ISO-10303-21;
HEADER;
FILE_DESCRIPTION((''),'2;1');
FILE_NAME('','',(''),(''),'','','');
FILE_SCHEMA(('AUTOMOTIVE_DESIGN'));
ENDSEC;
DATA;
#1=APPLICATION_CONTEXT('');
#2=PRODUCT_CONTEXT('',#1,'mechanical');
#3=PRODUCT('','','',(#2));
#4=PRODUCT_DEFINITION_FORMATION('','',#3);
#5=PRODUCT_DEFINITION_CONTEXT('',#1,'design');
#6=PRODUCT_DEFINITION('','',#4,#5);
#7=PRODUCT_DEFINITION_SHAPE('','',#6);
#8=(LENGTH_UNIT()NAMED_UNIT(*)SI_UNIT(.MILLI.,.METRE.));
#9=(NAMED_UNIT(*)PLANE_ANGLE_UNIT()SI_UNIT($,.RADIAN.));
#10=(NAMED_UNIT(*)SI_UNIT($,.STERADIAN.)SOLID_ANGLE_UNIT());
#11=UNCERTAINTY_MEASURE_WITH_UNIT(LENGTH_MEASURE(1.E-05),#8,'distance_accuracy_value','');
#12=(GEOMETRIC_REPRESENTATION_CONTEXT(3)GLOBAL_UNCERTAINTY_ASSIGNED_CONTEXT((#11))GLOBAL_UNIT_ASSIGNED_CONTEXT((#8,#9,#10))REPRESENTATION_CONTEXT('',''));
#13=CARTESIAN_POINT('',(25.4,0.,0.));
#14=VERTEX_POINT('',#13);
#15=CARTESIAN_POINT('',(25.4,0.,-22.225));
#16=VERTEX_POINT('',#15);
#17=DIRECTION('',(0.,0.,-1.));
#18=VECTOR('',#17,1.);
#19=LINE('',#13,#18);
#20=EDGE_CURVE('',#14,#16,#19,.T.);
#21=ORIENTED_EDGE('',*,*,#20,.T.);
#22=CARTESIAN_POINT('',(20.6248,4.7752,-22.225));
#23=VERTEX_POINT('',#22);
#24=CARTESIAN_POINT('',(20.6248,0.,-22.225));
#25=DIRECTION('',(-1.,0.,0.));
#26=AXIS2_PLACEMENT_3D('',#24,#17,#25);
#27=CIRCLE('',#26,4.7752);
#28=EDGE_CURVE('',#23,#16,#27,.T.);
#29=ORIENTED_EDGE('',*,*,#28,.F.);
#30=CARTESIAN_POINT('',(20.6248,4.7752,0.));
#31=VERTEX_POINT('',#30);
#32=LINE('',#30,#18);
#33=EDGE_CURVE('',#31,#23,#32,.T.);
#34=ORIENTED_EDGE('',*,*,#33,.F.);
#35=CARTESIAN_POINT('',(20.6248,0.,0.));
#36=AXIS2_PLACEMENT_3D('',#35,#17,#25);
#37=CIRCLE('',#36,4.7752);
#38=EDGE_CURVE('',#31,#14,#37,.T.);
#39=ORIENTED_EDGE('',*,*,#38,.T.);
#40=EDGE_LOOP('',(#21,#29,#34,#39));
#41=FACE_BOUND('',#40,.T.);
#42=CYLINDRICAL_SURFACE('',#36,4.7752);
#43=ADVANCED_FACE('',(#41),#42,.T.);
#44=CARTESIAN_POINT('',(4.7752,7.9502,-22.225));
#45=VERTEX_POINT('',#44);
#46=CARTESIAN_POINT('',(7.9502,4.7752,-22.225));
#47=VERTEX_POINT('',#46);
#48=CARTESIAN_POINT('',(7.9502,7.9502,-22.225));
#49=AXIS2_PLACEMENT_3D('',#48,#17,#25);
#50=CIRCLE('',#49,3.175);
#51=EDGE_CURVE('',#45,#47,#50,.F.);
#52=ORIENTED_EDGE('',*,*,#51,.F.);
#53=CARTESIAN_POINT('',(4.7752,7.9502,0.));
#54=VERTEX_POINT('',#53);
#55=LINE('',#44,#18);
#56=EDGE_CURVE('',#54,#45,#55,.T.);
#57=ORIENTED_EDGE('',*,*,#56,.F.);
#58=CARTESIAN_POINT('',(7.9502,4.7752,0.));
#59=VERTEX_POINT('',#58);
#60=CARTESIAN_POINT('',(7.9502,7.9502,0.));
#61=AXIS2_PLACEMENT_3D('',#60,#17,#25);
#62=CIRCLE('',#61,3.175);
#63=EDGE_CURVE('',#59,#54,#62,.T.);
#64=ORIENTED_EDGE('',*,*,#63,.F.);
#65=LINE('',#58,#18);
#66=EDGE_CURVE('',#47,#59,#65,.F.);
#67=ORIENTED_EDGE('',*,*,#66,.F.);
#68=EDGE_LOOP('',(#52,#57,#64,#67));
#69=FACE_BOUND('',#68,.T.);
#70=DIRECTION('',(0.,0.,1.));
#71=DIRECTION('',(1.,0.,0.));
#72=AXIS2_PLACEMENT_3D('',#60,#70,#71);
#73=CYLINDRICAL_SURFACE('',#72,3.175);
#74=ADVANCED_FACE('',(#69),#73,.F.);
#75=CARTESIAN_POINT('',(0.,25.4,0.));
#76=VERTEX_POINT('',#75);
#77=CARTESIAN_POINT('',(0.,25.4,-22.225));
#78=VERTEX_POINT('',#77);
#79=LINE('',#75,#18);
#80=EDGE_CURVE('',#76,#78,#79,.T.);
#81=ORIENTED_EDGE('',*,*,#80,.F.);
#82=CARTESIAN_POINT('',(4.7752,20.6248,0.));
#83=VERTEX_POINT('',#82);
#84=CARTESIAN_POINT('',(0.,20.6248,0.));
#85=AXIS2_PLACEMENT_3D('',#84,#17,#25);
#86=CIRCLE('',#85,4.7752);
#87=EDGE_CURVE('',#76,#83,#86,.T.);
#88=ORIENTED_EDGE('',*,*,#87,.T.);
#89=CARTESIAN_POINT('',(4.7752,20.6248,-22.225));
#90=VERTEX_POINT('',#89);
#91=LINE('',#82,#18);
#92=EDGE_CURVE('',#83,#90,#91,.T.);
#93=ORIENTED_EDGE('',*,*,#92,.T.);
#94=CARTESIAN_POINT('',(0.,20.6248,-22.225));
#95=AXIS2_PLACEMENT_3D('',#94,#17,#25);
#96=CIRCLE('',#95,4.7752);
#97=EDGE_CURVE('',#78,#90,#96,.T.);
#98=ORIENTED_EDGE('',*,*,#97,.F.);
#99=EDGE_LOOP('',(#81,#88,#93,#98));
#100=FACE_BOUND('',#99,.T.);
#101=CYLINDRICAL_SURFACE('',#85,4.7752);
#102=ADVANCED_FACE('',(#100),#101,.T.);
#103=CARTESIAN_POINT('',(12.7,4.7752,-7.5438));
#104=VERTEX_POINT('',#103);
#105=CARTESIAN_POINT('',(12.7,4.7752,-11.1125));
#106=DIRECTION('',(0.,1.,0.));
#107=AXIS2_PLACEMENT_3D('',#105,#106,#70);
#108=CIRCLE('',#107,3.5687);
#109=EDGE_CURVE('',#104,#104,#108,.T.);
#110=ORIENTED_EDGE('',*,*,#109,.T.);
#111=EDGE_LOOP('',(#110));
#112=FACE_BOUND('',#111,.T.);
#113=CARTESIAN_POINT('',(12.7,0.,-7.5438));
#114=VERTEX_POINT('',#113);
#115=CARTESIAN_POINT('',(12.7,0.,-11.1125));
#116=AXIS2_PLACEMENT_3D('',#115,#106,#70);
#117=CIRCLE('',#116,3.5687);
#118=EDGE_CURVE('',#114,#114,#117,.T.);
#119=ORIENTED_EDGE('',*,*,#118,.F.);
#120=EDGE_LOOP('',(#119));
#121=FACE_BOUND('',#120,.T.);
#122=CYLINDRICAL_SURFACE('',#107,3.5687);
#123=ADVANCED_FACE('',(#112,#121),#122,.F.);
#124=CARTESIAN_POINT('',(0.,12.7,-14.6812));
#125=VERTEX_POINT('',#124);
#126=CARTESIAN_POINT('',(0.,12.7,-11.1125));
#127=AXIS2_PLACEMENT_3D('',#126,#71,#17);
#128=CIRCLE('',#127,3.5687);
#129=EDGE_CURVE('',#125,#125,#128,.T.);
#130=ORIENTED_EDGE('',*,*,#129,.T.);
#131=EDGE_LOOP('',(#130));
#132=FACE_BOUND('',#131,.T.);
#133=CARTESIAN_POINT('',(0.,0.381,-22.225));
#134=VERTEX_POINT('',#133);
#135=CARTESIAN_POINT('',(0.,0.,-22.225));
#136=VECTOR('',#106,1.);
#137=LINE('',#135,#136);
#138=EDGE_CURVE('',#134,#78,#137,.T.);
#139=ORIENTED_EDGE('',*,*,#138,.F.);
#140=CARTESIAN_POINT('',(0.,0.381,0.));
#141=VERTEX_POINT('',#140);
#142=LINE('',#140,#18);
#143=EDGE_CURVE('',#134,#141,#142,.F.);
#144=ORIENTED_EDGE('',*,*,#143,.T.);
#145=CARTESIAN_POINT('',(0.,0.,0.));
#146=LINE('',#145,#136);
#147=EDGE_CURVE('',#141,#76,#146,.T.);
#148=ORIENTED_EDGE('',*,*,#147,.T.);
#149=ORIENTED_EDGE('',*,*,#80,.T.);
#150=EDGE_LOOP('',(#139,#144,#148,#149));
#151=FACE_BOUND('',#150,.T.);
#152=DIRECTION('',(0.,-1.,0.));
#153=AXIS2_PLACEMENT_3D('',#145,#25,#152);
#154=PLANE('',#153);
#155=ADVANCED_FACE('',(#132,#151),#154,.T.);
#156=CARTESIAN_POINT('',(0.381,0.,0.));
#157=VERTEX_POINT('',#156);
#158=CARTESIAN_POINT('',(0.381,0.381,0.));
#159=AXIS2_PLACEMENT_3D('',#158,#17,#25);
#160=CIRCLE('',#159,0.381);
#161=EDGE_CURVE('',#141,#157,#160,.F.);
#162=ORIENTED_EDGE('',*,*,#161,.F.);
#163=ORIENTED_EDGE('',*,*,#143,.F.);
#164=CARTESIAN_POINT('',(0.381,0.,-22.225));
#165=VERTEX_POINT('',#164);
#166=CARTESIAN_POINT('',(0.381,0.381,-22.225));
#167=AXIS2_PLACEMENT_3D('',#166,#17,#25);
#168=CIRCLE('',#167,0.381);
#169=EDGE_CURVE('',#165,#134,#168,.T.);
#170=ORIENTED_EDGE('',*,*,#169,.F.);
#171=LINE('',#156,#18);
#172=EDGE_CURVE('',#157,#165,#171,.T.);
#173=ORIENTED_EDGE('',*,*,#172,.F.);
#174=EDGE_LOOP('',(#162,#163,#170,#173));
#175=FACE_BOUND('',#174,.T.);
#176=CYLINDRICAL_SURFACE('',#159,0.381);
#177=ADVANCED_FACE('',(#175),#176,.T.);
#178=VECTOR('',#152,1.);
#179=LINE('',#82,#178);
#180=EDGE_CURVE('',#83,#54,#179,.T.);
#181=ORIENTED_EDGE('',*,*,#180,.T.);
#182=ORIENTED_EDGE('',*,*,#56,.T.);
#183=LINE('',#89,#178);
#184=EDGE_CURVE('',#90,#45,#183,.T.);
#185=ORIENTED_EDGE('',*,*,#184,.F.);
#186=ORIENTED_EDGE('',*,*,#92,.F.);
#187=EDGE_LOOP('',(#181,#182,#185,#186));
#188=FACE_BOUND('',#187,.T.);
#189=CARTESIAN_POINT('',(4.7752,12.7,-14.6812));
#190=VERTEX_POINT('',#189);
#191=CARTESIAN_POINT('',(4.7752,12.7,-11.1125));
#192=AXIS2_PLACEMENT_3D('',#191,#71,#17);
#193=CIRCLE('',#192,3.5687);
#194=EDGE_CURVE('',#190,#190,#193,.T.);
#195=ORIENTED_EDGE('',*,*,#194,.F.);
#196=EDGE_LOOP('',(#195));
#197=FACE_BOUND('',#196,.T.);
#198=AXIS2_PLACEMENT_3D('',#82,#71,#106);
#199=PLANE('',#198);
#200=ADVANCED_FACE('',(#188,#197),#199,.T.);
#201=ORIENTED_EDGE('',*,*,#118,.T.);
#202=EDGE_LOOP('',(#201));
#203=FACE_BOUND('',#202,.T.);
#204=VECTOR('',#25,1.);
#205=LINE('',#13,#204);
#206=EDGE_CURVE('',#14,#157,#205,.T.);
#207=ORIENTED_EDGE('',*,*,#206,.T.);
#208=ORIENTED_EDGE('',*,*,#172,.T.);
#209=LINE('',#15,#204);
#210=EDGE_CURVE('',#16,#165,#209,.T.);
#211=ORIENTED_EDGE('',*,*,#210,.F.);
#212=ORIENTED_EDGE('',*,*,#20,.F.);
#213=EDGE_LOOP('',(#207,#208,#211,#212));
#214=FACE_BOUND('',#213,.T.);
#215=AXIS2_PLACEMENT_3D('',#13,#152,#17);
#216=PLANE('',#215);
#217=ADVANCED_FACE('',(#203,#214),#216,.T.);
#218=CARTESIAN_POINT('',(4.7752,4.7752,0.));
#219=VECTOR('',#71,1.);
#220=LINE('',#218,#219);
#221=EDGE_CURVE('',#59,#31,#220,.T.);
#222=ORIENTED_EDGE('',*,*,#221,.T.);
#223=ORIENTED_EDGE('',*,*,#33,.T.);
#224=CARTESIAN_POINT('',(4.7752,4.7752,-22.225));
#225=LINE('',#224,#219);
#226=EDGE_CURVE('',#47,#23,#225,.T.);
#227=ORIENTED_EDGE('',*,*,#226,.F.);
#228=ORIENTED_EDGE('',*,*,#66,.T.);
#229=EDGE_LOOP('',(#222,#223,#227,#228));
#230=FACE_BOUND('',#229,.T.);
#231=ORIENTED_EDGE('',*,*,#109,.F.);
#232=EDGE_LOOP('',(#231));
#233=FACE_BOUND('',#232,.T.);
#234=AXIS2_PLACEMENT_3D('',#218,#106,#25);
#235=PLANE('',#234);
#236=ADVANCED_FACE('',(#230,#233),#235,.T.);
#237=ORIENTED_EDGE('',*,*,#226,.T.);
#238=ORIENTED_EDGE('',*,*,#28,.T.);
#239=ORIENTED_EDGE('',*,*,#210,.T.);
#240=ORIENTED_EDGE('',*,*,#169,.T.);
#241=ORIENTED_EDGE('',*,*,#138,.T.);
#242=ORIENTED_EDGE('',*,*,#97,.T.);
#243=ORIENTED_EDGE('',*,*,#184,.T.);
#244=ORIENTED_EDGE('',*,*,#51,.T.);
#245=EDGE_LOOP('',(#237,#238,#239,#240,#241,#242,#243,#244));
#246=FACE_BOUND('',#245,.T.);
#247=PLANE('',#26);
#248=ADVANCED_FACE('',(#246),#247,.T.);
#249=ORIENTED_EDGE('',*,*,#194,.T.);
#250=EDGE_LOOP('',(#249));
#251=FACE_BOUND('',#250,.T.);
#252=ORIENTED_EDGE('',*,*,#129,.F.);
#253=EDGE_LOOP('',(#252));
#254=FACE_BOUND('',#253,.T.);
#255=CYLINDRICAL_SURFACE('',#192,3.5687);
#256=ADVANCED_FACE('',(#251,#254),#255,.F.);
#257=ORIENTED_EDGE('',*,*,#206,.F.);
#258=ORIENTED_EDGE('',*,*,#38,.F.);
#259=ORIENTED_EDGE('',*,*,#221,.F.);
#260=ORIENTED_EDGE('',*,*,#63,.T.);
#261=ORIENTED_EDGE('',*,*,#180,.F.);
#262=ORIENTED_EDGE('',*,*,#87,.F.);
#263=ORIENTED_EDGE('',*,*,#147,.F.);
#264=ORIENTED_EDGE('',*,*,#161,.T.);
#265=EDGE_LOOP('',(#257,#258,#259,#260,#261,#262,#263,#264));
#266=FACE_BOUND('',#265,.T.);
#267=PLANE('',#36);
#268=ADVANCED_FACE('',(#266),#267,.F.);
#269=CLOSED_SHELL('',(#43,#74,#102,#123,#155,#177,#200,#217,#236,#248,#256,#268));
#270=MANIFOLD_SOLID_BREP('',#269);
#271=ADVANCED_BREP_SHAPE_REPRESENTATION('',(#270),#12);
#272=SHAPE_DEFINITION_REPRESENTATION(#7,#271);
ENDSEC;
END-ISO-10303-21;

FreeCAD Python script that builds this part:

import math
import FreeCAD as App
import Part
import Sketcher
from FreeCAD import Vector
Q = App.Units.Quantity


def edges_at(feature, points):
    """Names of the edges that pass closest to the given points."""
    edges = feature.Shape.Edges
    near = lambda p: min(range(len(edges)), key=lambda i: edges[i].distToShape(Part.Vertex(*p))[0])
    return sorted({f"Edge{near(p) + 1}" for p in points})

doc = App.newDocument("Part")
body = doc.addObject("PartDesign::Body", "Body")

# Sketch on XY plane
sketch1 = body.newObject("Sketcher::SketchObject", "Sketch")
sketch1.AttachmentSupport = (doc.getObject("XY_Plane"), [""])
sketch1.MapMode = "FlatFace"
sketch1.AttachmentOffset = App.Placement(Vector(0, 0, -0.4375 * 25.4), App.Rotation())
sketch1.addGeometry([
    Part.LineSegment(Vector(25.4, 0, 0), Vector(0, 0, 0)),  # 0
    Part.LineSegment(Vector(0, 0, 0), Vector(0, 25.4, 0)),  # 1
    Part.ArcOfCircle(Part.Circle(Vector(0, 20.6, 0), Vector(0, 0, 1), 4.8), math.radians(0), math.radians(90)),  # 2
    Part.LineSegment(Vector(4.8, 20.6, 0), Vector(4.8, 4.8, 0)),  # 3
    Part.LineSegment(Vector(4.8, 4.8, 0), Vector(20.6, 4.8, 0)),  # 4
    Part.ArcOfCircle(Part.Circle(Vector(20.6, 0, 0), Vector(0, 0, 1), 4.8), math.radians(0), math.radians(90)),  # 5
], False)
sketch1.addConstraint([
    Sketcher.Constraint("Coincident", 0, 2, 1, 1),
    Sketcher.Constraint("Coincident", 1, 2, 2, 2),
    Sketcher.Constraint("Tangent", 2, 1, 3, 1),
    Sketcher.Constraint("Coincident", 3, 2, 4, 1),
    Sketcher.Constraint("Tangent", 4, 2, 5, 2),
    Sketcher.Constraint("Coincident", 5, 1, 0, 1),
    Sketcher.Constraint("Horizontal", 0),
    Sketcher.Constraint("Vertical", 1),
    Sketcher.Constraint("Vertical", 3),
    Sketcher.Constraint("Horizontal", 4),
    Sketcher.Constraint("Coincident", 0, 2, -1, 1),
    Sketcher.Constraint("Equal", 2, 5),
    Sketcher.Constraint("PointOnObject", 2, 3, -2),
    Sketcher.Constraint("PointOnObject", 5, 3, -1),
    Sketcher.Constraint("Equal", 0, 1),
    Sketcher.Constraint("DistanceX", 0, 2, 0, 1, Q("1 in")),
    Sketcher.Constraint("Radius", 2, Q("0.188 in")),
])
pad1 = body.newObject("PartDesign::Pad", "Pad")
pad1.Profile = sketch1
pad1.Length = Q("0.875 in")
pad1.Midplane = True

# Sketch on XZ plane
sketch2 = body.newObject("Sketcher::SketchObject", "Sketch001")
sketch2.AttachmentSupport = (doc.getObject("XZ_Plane"), [""])
sketch2.MapMode = "FlatFace"
sketch2.AttachmentOffset = App.Placement(Vector(0, 0, -0.188 * 25.4), App.Rotation())
sketch2.addGeometry(Part.Circle(Vector(12.7, -11.1, 0), Vector(0, 0, 1), 3.6), False)
sketch2.addConstraint([
    Sketcher.Constraint("Diameter", 0, Q("0.281 in")),
    Sketcher.Constraint("DistanceX", -1, 1, 0, 3, Q("0.5 in")),
    Sketcher.Constraint("DistanceY", 0, 3, -1, 1, Q("0.4375 in")),
])
doc.recompute()
hole = body.newObject("PartDesign::Hole", "Hole")
hole.Profile = sketch2
hole.ThreadType = "None"
hole.Diameter = Q("0.281 in")
hole.DepthType = "ThroughAll"
hole.Reversed = True

# Sketch on YZ plane
sketch3 = body.newObject("Sketcher::SketchObject", "Sketch002")
sketch3.AttachmentSupport = (doc.getObject("YZ_Plane"), [""])
sketch3.MapMode = "FlatFace"
sketch3.AttachmentOffset = App.Placement(Vector(0, 0, 0.188 * 25.4), App.Rotation())
sketch3.addGeometry(Part.Circle(Vector(12.7, -11.1, 0), Vector(0, 0, 1), 3.6), False)
sketch3.addConstraint([
    Sketcher.Constraint("Diameter", 0, Q("0.281 in")),
    Sketcher.Constraint("DistanceX", -1, 1, 0, 3, Q("0.5 in")),
    Sketcher.Constraint("DistanceY", 0, 3, -1, 1, Q("0.4375 in")),
])
doc.recompute()
hole2 = body.newObject("PartDesign::Hole", "Hole001")
hole2.Profile = sketch3
hole2.ThreadType = "None"
hole2.Diameter = Q("0.281 in")
hole2.DepthType = "ThroughAll"
doc.recompute()

fillet = body.newObject("PartDesign::Fillet", "Fillet")
fillet.Base = (hole2, edges_at(hole2, [(0, 0, -11.113)]))
fillet.Radius = Q("0.015 in")
doc.recompute()

fillet2 = body.newObject("PartDesign::Fillet", "Fillet001")
fillet2.Base = (fillet, edges_at(fillet, [(4.775, 4.775, -11.113)]))
fillet2.Radius = Q("0.125 in")

doc.recompute()
